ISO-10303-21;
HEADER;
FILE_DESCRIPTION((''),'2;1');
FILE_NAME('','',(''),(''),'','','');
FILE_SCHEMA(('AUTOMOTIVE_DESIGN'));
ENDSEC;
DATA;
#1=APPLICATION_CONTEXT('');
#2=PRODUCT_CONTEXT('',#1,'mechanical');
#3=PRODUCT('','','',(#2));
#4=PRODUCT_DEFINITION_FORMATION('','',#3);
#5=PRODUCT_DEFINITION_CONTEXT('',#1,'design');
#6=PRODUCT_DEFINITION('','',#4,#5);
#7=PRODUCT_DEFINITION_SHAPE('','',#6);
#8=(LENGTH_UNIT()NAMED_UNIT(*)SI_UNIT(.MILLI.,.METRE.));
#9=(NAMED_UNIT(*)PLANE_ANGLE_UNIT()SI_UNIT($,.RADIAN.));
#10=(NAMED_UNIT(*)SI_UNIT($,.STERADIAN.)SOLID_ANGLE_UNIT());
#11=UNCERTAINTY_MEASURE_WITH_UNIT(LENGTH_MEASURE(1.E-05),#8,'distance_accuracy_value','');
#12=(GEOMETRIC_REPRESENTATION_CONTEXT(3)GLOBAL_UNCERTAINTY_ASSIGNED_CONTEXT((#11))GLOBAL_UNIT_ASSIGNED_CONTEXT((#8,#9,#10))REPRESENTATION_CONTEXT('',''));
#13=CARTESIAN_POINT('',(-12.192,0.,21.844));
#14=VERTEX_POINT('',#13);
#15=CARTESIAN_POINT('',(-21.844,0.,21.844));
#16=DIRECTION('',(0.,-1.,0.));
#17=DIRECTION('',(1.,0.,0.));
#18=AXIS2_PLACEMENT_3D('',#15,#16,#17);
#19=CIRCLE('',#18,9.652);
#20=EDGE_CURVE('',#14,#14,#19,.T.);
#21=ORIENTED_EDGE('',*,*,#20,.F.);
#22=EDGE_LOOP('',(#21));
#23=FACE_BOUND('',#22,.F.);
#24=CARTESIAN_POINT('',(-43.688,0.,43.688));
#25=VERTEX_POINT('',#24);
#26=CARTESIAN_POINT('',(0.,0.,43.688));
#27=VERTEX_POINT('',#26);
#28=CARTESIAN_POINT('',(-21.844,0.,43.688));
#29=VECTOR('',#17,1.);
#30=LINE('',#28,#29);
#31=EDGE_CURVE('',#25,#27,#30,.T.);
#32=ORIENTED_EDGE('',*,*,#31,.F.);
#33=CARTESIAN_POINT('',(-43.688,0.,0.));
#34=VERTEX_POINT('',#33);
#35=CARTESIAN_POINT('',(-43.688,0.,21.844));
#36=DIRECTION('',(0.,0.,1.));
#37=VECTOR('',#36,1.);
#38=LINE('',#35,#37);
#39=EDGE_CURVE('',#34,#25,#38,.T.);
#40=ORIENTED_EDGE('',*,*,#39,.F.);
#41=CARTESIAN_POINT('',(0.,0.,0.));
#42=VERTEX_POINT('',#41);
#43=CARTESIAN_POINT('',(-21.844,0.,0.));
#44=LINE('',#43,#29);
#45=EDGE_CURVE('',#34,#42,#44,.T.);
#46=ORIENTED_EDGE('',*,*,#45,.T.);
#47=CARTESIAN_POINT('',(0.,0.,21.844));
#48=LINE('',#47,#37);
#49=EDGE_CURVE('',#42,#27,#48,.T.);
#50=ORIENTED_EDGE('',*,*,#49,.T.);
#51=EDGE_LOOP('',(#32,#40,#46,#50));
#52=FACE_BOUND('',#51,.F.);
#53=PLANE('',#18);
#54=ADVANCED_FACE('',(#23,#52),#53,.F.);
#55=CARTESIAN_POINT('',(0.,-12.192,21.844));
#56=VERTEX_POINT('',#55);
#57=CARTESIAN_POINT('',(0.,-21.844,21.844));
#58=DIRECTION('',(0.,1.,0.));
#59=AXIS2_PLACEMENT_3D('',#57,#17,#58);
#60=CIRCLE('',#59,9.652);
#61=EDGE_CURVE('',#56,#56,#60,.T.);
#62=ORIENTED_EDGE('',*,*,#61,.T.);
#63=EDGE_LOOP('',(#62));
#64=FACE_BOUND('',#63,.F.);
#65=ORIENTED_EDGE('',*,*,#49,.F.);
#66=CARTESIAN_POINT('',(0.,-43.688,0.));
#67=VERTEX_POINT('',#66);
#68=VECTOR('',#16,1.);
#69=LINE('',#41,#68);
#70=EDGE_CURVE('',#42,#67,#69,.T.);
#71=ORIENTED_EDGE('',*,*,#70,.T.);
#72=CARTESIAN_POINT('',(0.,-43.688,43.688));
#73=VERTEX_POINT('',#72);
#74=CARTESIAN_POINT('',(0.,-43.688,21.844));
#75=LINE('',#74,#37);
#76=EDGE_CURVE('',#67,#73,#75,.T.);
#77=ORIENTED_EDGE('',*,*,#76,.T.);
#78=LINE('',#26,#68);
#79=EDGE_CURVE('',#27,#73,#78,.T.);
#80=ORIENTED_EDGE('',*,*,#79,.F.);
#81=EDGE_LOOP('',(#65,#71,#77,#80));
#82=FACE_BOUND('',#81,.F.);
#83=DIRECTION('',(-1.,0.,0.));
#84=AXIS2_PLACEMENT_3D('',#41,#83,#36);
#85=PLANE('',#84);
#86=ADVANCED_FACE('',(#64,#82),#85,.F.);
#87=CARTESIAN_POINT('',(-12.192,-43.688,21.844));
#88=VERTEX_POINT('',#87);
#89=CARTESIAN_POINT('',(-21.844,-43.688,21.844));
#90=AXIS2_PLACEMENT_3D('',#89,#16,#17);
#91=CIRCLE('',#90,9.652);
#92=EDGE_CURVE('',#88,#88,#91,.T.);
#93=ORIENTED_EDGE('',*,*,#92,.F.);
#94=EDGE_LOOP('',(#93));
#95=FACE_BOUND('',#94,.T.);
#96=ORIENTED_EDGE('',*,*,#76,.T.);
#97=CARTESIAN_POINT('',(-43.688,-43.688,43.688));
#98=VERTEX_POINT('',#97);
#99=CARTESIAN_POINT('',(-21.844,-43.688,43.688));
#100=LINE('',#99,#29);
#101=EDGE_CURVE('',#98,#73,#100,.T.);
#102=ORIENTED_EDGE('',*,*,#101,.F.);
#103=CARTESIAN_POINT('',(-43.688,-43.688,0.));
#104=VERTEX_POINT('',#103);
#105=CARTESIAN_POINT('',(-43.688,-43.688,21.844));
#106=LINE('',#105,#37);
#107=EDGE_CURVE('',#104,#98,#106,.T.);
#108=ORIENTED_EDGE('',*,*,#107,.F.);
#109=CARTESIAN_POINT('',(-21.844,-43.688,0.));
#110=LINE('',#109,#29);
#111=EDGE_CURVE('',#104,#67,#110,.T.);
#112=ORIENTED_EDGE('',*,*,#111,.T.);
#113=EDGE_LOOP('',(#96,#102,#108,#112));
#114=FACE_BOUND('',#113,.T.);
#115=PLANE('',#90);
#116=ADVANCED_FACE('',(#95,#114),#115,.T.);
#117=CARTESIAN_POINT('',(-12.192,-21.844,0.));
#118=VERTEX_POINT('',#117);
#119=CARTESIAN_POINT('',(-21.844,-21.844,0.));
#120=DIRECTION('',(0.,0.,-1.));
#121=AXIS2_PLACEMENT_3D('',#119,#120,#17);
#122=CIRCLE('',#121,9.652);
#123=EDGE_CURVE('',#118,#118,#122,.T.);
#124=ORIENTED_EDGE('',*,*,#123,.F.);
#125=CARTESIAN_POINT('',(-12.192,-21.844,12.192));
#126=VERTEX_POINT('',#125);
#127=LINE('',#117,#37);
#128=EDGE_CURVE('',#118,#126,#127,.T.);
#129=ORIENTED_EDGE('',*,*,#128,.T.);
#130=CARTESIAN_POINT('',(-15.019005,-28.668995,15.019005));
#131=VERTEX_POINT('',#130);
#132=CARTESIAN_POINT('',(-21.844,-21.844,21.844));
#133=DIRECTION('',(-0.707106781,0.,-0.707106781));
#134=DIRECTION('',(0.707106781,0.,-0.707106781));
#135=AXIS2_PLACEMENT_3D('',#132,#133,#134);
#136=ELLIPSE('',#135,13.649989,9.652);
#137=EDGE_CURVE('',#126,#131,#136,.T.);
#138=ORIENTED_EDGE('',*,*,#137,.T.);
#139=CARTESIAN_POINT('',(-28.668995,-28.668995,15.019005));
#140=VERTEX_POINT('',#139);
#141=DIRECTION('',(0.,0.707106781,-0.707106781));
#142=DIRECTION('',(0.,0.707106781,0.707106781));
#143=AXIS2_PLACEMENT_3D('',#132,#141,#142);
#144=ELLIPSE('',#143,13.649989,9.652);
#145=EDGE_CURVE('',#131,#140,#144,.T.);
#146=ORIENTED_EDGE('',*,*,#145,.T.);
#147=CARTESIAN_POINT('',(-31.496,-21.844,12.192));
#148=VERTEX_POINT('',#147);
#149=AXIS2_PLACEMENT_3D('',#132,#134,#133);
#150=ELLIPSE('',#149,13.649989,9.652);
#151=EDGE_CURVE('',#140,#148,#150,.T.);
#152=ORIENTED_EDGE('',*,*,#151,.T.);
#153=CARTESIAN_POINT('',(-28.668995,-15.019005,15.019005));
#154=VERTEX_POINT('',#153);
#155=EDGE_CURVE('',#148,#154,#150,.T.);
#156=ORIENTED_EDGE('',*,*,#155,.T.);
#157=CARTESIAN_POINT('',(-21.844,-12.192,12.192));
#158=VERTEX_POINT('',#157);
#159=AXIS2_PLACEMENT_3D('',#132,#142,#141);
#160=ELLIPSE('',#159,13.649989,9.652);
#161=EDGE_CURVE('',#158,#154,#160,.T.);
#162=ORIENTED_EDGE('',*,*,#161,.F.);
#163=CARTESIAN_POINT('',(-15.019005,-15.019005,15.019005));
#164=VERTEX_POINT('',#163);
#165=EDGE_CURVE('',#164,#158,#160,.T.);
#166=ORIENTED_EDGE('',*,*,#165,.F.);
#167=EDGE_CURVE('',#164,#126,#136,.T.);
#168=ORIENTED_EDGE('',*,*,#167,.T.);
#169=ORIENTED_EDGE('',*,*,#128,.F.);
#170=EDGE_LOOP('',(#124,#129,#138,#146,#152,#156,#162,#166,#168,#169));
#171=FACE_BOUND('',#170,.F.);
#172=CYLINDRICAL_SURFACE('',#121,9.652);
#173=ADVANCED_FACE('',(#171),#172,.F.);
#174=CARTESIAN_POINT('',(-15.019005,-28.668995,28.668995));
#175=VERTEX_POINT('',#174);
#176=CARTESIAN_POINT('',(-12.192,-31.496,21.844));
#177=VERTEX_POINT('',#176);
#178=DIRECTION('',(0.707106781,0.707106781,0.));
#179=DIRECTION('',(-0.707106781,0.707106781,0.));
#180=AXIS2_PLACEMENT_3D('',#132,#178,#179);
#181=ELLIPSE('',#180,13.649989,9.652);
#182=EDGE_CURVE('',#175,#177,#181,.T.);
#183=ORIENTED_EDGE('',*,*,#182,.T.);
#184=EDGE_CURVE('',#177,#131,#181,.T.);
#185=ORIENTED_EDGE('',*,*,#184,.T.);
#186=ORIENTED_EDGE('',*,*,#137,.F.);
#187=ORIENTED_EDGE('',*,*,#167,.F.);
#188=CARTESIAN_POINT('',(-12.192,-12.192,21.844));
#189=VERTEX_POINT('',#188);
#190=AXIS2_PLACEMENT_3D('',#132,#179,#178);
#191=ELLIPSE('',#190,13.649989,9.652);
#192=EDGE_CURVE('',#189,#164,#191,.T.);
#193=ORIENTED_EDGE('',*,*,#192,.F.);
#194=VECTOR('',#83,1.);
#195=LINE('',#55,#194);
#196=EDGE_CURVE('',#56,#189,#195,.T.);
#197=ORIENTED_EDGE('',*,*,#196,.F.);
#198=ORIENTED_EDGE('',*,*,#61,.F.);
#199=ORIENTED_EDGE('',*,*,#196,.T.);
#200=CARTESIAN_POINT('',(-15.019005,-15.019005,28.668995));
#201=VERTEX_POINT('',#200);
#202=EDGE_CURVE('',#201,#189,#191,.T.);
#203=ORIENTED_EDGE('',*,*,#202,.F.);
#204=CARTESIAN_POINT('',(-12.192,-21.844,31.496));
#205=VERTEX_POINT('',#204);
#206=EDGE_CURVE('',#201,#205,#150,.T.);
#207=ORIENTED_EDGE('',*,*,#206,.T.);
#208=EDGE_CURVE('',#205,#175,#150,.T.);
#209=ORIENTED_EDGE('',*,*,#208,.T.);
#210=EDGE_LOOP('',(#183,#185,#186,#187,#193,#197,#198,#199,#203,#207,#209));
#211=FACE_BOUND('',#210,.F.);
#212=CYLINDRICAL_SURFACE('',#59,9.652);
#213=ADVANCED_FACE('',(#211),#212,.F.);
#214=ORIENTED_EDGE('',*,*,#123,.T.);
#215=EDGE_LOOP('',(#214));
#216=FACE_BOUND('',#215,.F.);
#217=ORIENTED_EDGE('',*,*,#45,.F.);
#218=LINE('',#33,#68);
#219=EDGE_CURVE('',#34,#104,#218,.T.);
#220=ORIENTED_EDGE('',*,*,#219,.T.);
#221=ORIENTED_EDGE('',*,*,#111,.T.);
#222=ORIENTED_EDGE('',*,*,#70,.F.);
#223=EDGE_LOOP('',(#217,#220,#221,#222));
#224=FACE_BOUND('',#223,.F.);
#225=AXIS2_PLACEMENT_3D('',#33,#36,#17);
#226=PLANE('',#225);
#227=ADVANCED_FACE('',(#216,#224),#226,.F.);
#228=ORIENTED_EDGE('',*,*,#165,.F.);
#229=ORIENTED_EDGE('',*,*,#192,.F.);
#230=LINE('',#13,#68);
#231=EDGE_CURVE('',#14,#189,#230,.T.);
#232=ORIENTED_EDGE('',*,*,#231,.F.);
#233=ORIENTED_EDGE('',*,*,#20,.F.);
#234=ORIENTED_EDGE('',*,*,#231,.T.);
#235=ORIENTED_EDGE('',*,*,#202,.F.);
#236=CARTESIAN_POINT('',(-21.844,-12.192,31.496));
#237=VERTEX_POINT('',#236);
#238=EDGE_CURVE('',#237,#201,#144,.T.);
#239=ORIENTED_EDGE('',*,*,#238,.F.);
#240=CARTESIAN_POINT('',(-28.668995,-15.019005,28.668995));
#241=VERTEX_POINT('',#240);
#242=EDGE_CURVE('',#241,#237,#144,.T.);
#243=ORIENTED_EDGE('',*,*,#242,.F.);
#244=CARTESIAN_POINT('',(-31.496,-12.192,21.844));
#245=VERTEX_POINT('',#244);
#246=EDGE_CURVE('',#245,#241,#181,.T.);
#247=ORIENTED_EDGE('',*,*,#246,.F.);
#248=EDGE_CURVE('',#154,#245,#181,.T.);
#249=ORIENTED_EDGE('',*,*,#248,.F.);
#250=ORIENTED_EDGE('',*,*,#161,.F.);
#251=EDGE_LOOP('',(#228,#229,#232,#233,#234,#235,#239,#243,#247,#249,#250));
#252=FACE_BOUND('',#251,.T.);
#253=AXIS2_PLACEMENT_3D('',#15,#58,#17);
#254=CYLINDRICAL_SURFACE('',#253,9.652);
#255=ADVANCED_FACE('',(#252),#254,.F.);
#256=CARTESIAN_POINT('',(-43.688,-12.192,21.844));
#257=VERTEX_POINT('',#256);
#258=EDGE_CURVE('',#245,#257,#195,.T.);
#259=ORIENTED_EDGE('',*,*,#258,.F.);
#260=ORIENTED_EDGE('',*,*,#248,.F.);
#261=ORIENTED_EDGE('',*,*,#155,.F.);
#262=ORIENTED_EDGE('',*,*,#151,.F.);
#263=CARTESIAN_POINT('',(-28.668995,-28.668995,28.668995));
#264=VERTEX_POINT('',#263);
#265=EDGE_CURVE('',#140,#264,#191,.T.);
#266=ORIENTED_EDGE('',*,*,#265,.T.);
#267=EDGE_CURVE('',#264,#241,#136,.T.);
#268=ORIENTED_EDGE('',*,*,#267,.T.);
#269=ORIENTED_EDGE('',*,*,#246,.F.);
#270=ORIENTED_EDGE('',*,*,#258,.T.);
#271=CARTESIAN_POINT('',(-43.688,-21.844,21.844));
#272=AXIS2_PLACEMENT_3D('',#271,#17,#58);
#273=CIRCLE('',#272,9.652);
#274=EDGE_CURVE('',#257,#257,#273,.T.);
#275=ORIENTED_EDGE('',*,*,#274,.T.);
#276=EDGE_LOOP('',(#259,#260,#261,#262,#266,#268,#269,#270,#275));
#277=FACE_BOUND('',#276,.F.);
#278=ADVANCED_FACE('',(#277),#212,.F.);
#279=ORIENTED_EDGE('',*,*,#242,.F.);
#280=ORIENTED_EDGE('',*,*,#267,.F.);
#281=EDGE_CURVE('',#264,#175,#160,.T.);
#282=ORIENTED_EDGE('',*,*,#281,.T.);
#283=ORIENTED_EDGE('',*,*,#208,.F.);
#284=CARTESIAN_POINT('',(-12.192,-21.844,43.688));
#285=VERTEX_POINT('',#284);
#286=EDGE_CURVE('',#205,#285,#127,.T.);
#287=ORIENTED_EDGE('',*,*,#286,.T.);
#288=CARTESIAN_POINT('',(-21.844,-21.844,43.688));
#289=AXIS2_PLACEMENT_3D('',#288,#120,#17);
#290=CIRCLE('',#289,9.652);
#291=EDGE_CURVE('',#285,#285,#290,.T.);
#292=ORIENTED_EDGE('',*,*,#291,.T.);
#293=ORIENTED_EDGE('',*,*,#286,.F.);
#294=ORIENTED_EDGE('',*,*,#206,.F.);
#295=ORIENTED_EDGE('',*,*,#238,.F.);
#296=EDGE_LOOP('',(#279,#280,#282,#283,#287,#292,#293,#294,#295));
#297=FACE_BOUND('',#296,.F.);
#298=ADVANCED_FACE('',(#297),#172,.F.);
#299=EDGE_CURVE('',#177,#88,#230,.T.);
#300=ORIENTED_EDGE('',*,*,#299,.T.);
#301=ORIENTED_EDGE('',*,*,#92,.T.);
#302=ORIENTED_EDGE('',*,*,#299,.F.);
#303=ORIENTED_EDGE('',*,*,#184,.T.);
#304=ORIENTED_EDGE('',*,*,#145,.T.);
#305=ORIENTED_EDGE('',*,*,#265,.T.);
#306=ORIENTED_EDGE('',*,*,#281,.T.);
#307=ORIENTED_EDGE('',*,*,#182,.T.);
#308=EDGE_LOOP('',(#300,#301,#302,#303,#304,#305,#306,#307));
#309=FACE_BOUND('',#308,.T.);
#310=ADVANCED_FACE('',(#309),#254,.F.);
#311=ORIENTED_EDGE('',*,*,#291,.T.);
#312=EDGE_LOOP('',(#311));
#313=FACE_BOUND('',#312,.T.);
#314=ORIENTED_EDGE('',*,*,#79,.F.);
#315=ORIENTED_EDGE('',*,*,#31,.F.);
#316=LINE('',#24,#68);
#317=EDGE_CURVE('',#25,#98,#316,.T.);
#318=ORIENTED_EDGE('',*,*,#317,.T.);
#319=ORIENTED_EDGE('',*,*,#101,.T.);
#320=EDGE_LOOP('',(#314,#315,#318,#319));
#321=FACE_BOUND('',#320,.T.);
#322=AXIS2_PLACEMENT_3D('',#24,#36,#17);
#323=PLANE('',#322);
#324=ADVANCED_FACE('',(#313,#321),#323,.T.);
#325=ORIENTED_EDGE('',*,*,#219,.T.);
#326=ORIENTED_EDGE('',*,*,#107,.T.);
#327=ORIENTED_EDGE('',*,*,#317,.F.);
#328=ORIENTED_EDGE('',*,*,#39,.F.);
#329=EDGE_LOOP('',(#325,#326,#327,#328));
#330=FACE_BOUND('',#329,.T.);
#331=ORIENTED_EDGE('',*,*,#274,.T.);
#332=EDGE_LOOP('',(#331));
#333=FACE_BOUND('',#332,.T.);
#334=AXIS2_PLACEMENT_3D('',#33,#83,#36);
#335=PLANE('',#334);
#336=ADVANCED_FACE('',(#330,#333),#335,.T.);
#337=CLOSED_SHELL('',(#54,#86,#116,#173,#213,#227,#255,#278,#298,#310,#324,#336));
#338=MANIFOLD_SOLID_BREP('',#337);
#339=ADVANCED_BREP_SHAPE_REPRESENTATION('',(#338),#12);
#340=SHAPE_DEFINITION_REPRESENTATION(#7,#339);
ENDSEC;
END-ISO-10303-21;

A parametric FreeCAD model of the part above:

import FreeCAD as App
import Part
import Sketcher
from FreeCAD import Vector
Q = App.Units.Quantity

doc = App.newDocument("Part")
body = doc.addObject("PartDesign::Body", "Body")

sketch1 = body.newObject("Sketcher::SketchObject", "Sketch")
sketch1.AttachmentSupport = (doc.getObject("XZ_Plane"), [""])
sketch1.MapMode = "FlatFace"
sketch1.addGeometry(Part.LineSegment(Vector(-43.688, 43.688, 0), Vector(-43.688, 0, 0)), False)
sketch1.addGeometry(Part.LineSegment(Vector(-43.688, 0, 0), Vector(0, 0, 0)), False)
sketch1.addGeometry(Part.LineSegment(Vector(0, 0, 0), Vector(0, 43.688, 0)), False)
sketch1.addGeometry(Part.LineSegment(Vector(0, 43.688, 0), Vector(-43.688, 43.688, 0)), False)
sketch1.addGeometry(Part.Circle(Vector(-21.844, 21.844, 0), Vector(0, 0, 1), 9.652), False)
sketch1.addConstraint(Sketcher.Constraint("Coincident", 0, 2, 1, 1))
sketch1.addConstraint(Sketcher.Constraint("Coincident", 1, 2, 2, 1))
sketch1.addConstraint(Sketcher.Constraint("Coincident", 2, 2, 3, 1))
sketch1.addConstraint(Sketcher.Constraint("Coincident", 3, 2, 0, 1))
sketch1.addConstraint(Sketcher.Constraint("Vertical", 0))
sketch1.addConstraint(Sketcher.Constraint("Horizontal", 1))
sketch1.addConstraint(Sketcher.Constraint("Vertical", 2))
sketch1.addConstraint(Sketcher.Constraint("Horizontal", 3))
sketch1.addConstraint(Sketcher.Constraint("Coincident", 1, 2, -1, 1))
sketch1.addConstraint(Sketcher.Constraint("Equal", 3, 0))
sketch1.addConstraint(Sketcher.Constraint("Diameter", 4, Q("0.76 in")))
sketch1.addConstraint(Sketcher.Constraint("DistanceX", 1, 1, 1, 2, Q("1.72 in")))
sketch1.addConstraint(Sketcher.Constraint("DistanceX", 4, 3, -1, 1, Q("0.86 in")))
sketch1.addConstraint(Sketcher.Constraint("DistanceY", -1, 1, 4, 3, Q("0.86 in")))
pad1 = body.newObject("PartDesign::Pad", "Pad")
pad1.Profile = sketch1
pad1.Length = Q("1.72 in")

sketch2 = body.newObject("Sketcher::SketchObject", "Sketch001")
sketch2.AttachmentSupport = (doc.getObject("XY_Plane"), [""])
sketch2.MapMode = "FlatFace"
sketch2.addGeometry(Part.Circle(Vector(-21.844, -21.844, 0), Vector(0, 0, 1), 9.652), False)
sketch2.addConstraint(Sketcher.Constraint("Diameter", 0, Q("0.76 in")))
sketch2.addConstraint(Sketcher.Constraint("DistanceX", 0, 3, -1, 1, Q("0.86 in")))
sketch2.addConstraint(Sketcher.Constraint("DistanceY", 0, 3, -1, 1, Q("0.86 in")))
pocket1 = body.newObject("PartDesign::Pocket", "Pocket")
pocket1.Profile = sketch2
pocket1.Type = "ThroughAll"
pocket1.Reversed = True

sketch3 = body.newObject("Sketcher::SketchObject", "Sketch002")
sketch3.AttachmentSupport = (doc.getObject("YZ_Plane"), [""])
sketch3.MapMode = "FlatFace"
sketch3.addGeometry(Part.Circle(Vector(-21.844, 21.844, 0), Vector(0, 0, 1), 9.652), False)
sketch3.addConstraint(Sketcher.Constraint("Diameter", 0, Q("0.76 in")))
sketch3.addConstraint(Sketcher.Constraint("DistanceX", 0, 3, -1, 1, Q("0.86 in")))
sketch3.addConstraint(Sketcher.Constraint("DistanceY", -1, 1, 0, 3, Q("0.86 in")))
pocket2 = body.newObject("PartDesign::Pocket", "Pocket001")
pocket2.Profile = sketch3
pocket2.Type = "ThroughAll"

doc.recompute()
